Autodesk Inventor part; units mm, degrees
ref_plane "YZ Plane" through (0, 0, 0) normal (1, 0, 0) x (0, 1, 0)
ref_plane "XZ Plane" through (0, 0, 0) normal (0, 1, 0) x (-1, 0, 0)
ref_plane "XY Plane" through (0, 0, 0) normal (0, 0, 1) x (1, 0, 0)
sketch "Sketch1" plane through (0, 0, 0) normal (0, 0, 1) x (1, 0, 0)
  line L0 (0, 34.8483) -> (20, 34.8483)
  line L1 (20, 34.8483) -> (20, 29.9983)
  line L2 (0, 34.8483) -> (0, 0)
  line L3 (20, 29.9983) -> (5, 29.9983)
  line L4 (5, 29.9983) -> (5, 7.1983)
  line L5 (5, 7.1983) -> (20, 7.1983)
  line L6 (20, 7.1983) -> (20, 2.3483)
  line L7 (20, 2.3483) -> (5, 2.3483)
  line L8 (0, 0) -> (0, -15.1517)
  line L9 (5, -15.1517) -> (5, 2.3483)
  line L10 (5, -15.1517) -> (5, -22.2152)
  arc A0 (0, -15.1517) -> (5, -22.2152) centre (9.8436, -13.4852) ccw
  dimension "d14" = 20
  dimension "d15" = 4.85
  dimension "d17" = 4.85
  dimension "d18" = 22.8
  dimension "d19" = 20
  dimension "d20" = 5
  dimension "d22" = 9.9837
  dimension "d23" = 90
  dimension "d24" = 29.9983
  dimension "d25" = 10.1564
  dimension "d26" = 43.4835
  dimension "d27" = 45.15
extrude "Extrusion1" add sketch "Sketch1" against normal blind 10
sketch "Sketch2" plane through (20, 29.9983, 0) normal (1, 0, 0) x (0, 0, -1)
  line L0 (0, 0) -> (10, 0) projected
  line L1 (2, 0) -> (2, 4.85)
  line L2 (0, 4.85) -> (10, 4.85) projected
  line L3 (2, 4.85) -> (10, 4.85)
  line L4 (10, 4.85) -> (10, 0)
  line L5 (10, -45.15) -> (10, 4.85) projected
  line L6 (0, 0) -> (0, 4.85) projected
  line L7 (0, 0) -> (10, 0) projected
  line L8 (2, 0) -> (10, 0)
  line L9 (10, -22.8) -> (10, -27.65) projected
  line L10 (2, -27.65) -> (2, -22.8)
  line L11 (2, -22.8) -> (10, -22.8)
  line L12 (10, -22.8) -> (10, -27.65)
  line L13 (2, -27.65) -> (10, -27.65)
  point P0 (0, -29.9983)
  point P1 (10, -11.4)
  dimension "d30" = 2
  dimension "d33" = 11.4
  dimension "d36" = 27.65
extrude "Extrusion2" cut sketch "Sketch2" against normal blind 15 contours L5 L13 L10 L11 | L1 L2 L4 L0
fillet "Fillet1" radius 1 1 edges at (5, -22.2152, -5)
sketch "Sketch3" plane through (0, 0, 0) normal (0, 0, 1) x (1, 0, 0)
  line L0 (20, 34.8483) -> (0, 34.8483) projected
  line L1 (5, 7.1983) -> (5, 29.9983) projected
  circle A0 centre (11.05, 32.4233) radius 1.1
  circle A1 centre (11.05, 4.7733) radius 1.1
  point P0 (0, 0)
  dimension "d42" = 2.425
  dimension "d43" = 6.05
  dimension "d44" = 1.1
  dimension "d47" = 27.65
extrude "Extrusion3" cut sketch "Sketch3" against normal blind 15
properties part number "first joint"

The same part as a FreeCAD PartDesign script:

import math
import FreeCAD as App
import Part
import Sketcher
Q = App.Units.Quantity


def edges_at(feature, points):
    """Names of the edges that pass closest to the given points."""
    edges = feature.Shape.Edges
    near = lambda p: min(range(len(edges)), key=lambda i: edges[i].distToShape(Part.Vertex(*p))[0])
    return sorted({f"Edge{near(p) + 1}" for p in points})


def add_polygon(sketch, points):
    """Adds a closed chain of lines whose ends are joined by coincident constraints."""
    first, n = sketch.GeometryCount, len(points)
    for a, b in zip(points, points[1:] + points[:1]):
        sketch.addGeometry(Part.LineSegment(App.Vector(*a, 0), App.Vector(*b, 0)), False)
    for i in range(n):
        sketch.addConstraint(Sketcher.Constraint("Coincident", first + i, 2, first + (i + 1) % n, 1))

doc = App.newDocument("Part")
body = doc.addObject("PartDesign::Body", "Body")

sketch1 = body.newObject("Sketcher::SketchObject", "Sketch")
sketch1.AttachmentSupport = (doc.getObject("XY_Plane"), [""])
sketch1.MapMode = "FlatFace"
sketch1.addGeometry(Part.LineSegment(App.Vector(20, 34.8, 0), App.Vector(0, 34.8, 0)), False)
sketch1.addGeometry(Part.LineSegment(App.Vector(0, 34.8, 0), App.Vector(0, -15.2, 0)), False)
sketch1.addGeometry(Part.ArcOfCircle(Part.Circle(App.Vector(9.8, -13.5, 0), App.Vector(0, 0, 1), 10), math.radians(-170), math.radians(-119)), False)
sketch1.addGeometry(Part.LineSegment(App.Vector(5, -22.2, 0), App.Vector(5, 2.3, 0)), False)
sketch1.addGeometry(Part.LineSegment(App.Vector(5, 2.3, 0), App.Vector(20, 2.3, 0)), False)
sketch1.addGeometry(Part.LineSegment(App.Vector(20, 2.3, 0), App.Vector(20, 7.2, 0)), False)
sketch1.addGeometry(Part.LineSegment(App.Vector(20, 7.2, 0), App.Vector(5, 7.2, 0)), False)
sketch1.addGeometry(Part.LineSegment(App.Vector(5, 7.2, 0), App.Vector(5, 30, 0)), False)
sketch1.addGeometry(Part.LineSegment(App.Vector(5, 30, 0), App.Vector(20, 30, 0)), False)
sketch1.addGeometry(Part.LineSegment(App.Vector(20, 30, 0), App.Vector(20, 34.8, 0)), False)
sketch1.addConstraint(Sketcher.Constraint("Coincident", 0, 2, 1, 1))
sketch1.addConstraint(Sketcher.Constraint("Coincident", 1, 2, 2, 1))
sketch1.addConstraint(Sketcher.Constraint("Coincident", 2, 2, 3, 1))
sketch1.addConstraint(Sketcher.Constraint("Coincident", 3, 2, 4, 1))
sketch1.addConstraint(Sketcher.Constraint("Coincident", 4, 2, 5, 1))
sketch1.addConstraint(Sketcher.Constraint("Coincident", 5, 2, 6, 1))
sketch1.addConstraint(Sketcher.Constraint("Coincident", 6, 2, 7, 1))
sketch1.addConstraint(Sketcher.Constraint("Coincident", 7, 2, 8, 1))
sketch1.addConstraint(Sketcher.Constraint("Coincident", 8, 2, 9, 1))
sketch1.addConstraint(Sketcher.Constraint("Coincident", 9, 2, 0, 1))
sketch1.addConstraint(Sketcher.Constraint("Horizontal", 0))
sketch1.addConstraint(Sketcher.Constraint("Vertical", 1))
sketch1.addConstraint(Sketcher.Constraint("Vertical", 3))
sketch1.addConstraint(Sketcher.Constraint("Horizontal", 4))
sketch1.addConstraint(Sketcher.Constraint("Vertical", 5))
sketch1.addConstraint(Sketcher.Constraint("Horizontal", 6))
sketch1.addConstraint(Sketcher.Constraint("Vertical", 7))
sketch1.addConstraint(Sketcher.Constraint("Horizontal", 8))
sketch1.addConstraint(Sketcher.Constraint("Vertical", 9))
sketch1.addConstraint(Sketcher.Constraint("PointOnObject", 0, 2, -2))
sketch1.addConstraint(Sketcher.Constraint("Vertical", 3, 2, 6, 2))
sketch1.addConstraint(Sketcher.Constraint("Vertical", 5, 2, 8, 2))
sketch1.addConstraint(Sketcher.Constraint("Equal", 5, 9))
sketch1.addConstraint(Sketcher.Constraint("DistanceX", 0, 2, 0, 1, Q("20 mm")))
sketch1.addConstraint(Sketcher.Constraint("DistanceY", 7, 1, 7, 2, Q("22.8 mm")))
sketch1.addConstraint(Sketcher.Constraint("DistanceX", -1, 1, 2, 2, Q("5 mm")))
sketch1.addConstraint(Sketcher.Constraint("DistanceY", 5, 1, 5, 2, Q("4.85 mm")))
sketch1.addConstraint(Sketcher.Constraint("Radius", 2, Q("9.9837 mm")))
sketch1.addConstraint(Sketcher.Constraint("DistanceY", 1, 2, 1, 1, Q("50 mm")))
sketch1.addConstraint(Sketcher.Constraint("DistanceY", -1, 1, 7, 2, Q("29.9983 mm")))
sketch1.addConstraint(Sketcher.Constraint("DistanceX", 2, 3, 4, 2, Q("10.1564 mm")))
pad1 = body.newObject("PartDesign::Pad", "Pad")
pad1.Profile = sketch1
pad1.Length = 10
pad1.Reversed = True

sketch2 = body.newObject("Sketcher::SketchObject", "Sketch001")
sketch2.AttachmentSupport = (doc.getObject("YZ_Plane"), [""])
sketch2.MapMode = "FlatFace"
sketch2.AttachmentOffset = App.Placement(App.Vector(0, 0, 20), App.Rotation())
add_polygon(sketch2, [(2.3, -10), (7.2, -10), (7.2, -2), (2.3, -2)])
add_polygon(sketch2, [(34.8, -2), (30, -2), (30, -10), (34.8, -10)])
sketch2.addConstraint(Sketcher.Constraint("Horizontal", 0))
sketch2.addConstraint(Sketcher.Constraint("Vertical", 1))
sketch2.addConstraint(Sketcher.Constraint("Horizontal", 2))
sketch2.addConstraint(Sketcher.Constraint("Vertical", 3))
sketch2.addConstraint(Sketcher.Constraint("Horizontal", 4))
sketch2.addConstraint(Sketcher.Constraint("Vertical", 5))
sketch2.addConstraint(Sketcher.Constraint("Horizontal", 6))
sketch2.addConstraint(Sketcher.Constraint("Vertical", 7))
sketch2.addConstraint(Sketcher.Constraint("Horizontal", 2, 2, 4, 2))
sketch2.addConstraint(Sketcher.Constraint("Horizontal", 3, 2, 5, 2))
sketch2.addConstraint(Sketcher.Constraint("Equal", 2, 4))
sketch2.addConstraint(Sketcher.Constraint("DistanceY", 0, 2, -1, 1, Q("10 mm")))
sketch2.addConstraint(Sketcher.Constraint("DistanceY", 1, 2, -1, 1, Q("2 mm")))
sketch2.addConstraint(Sketcher.Constraint("DistanceX", 2, 2, 4, 2, Q("27.65 mm")))
sketch2.addConstraint(Sketcher.Constraint("DistanceX", 0, 1, 0, 2, Q("4.85 mm")))
sketch2.addConstraint(Sketcher.Constraint("DistanceX", -1, 1, 0, 2, Q("7.1983 mm")))
pocket1 = body.newObject("PartDesign::Pocket", "Pocket")
pocket1.Profile = sketch2
pocket1.Length = 15
doc.recompute()

fillet = body.newObject("PartDesign::Fillet", "Fillet")
fillet.Base = (pocket1, edges_at(pocket1, [(5, -22.215, -5)]))
fillet.Radius = 1

sketch3 = body.newObject("Sketcher::SketchObject", "Sketch002")
sketch3.AttachmentSupport = (doc.getObject("XY_Plane"), [""])
sketch3.MapMode = "FlatFace"
sketch3.addGeometry(Part.Circle(App.Vector(11.1, 32.4, 0), App.Vector(0, 0, 1), 1.1), False)
sketch3.addGeometry(Part.Circle(App.Vector(11.1, 4.8, 0), App.Vector(0, 0, 1), 1.1), False)
sketch3.addConstraint(Sketcher.Constraint("Equal", 0, 1))
sketch3.addConstraint(Sketcher.Constraint("Vertical", 0, 3, 1, 3))
sketch3.addConstraint(Sketcher.Constraint("Diameter", 0, Q("2.2 mm")))
sketch3.addConstraint(Sketcher.Constraint("DistanceY", 1, 3, 0, 3, Q("27.65 mm")))
sketch3.addConstraint(Sketcher.Constraint("DistanceX", -1, 1, 0, 3, Q("11.05 mm")))
sketch3.addConstraint(Sketcher.Constraint("DistanceY", -1, 1, 0, 3, Q("32.4233 mm")))
pocket2 = body.newObject("PartDesign::Pocket", "Pocket001")
pocket2.Profile = sketch3
pocket2.Length = 15

doc.recompute()
